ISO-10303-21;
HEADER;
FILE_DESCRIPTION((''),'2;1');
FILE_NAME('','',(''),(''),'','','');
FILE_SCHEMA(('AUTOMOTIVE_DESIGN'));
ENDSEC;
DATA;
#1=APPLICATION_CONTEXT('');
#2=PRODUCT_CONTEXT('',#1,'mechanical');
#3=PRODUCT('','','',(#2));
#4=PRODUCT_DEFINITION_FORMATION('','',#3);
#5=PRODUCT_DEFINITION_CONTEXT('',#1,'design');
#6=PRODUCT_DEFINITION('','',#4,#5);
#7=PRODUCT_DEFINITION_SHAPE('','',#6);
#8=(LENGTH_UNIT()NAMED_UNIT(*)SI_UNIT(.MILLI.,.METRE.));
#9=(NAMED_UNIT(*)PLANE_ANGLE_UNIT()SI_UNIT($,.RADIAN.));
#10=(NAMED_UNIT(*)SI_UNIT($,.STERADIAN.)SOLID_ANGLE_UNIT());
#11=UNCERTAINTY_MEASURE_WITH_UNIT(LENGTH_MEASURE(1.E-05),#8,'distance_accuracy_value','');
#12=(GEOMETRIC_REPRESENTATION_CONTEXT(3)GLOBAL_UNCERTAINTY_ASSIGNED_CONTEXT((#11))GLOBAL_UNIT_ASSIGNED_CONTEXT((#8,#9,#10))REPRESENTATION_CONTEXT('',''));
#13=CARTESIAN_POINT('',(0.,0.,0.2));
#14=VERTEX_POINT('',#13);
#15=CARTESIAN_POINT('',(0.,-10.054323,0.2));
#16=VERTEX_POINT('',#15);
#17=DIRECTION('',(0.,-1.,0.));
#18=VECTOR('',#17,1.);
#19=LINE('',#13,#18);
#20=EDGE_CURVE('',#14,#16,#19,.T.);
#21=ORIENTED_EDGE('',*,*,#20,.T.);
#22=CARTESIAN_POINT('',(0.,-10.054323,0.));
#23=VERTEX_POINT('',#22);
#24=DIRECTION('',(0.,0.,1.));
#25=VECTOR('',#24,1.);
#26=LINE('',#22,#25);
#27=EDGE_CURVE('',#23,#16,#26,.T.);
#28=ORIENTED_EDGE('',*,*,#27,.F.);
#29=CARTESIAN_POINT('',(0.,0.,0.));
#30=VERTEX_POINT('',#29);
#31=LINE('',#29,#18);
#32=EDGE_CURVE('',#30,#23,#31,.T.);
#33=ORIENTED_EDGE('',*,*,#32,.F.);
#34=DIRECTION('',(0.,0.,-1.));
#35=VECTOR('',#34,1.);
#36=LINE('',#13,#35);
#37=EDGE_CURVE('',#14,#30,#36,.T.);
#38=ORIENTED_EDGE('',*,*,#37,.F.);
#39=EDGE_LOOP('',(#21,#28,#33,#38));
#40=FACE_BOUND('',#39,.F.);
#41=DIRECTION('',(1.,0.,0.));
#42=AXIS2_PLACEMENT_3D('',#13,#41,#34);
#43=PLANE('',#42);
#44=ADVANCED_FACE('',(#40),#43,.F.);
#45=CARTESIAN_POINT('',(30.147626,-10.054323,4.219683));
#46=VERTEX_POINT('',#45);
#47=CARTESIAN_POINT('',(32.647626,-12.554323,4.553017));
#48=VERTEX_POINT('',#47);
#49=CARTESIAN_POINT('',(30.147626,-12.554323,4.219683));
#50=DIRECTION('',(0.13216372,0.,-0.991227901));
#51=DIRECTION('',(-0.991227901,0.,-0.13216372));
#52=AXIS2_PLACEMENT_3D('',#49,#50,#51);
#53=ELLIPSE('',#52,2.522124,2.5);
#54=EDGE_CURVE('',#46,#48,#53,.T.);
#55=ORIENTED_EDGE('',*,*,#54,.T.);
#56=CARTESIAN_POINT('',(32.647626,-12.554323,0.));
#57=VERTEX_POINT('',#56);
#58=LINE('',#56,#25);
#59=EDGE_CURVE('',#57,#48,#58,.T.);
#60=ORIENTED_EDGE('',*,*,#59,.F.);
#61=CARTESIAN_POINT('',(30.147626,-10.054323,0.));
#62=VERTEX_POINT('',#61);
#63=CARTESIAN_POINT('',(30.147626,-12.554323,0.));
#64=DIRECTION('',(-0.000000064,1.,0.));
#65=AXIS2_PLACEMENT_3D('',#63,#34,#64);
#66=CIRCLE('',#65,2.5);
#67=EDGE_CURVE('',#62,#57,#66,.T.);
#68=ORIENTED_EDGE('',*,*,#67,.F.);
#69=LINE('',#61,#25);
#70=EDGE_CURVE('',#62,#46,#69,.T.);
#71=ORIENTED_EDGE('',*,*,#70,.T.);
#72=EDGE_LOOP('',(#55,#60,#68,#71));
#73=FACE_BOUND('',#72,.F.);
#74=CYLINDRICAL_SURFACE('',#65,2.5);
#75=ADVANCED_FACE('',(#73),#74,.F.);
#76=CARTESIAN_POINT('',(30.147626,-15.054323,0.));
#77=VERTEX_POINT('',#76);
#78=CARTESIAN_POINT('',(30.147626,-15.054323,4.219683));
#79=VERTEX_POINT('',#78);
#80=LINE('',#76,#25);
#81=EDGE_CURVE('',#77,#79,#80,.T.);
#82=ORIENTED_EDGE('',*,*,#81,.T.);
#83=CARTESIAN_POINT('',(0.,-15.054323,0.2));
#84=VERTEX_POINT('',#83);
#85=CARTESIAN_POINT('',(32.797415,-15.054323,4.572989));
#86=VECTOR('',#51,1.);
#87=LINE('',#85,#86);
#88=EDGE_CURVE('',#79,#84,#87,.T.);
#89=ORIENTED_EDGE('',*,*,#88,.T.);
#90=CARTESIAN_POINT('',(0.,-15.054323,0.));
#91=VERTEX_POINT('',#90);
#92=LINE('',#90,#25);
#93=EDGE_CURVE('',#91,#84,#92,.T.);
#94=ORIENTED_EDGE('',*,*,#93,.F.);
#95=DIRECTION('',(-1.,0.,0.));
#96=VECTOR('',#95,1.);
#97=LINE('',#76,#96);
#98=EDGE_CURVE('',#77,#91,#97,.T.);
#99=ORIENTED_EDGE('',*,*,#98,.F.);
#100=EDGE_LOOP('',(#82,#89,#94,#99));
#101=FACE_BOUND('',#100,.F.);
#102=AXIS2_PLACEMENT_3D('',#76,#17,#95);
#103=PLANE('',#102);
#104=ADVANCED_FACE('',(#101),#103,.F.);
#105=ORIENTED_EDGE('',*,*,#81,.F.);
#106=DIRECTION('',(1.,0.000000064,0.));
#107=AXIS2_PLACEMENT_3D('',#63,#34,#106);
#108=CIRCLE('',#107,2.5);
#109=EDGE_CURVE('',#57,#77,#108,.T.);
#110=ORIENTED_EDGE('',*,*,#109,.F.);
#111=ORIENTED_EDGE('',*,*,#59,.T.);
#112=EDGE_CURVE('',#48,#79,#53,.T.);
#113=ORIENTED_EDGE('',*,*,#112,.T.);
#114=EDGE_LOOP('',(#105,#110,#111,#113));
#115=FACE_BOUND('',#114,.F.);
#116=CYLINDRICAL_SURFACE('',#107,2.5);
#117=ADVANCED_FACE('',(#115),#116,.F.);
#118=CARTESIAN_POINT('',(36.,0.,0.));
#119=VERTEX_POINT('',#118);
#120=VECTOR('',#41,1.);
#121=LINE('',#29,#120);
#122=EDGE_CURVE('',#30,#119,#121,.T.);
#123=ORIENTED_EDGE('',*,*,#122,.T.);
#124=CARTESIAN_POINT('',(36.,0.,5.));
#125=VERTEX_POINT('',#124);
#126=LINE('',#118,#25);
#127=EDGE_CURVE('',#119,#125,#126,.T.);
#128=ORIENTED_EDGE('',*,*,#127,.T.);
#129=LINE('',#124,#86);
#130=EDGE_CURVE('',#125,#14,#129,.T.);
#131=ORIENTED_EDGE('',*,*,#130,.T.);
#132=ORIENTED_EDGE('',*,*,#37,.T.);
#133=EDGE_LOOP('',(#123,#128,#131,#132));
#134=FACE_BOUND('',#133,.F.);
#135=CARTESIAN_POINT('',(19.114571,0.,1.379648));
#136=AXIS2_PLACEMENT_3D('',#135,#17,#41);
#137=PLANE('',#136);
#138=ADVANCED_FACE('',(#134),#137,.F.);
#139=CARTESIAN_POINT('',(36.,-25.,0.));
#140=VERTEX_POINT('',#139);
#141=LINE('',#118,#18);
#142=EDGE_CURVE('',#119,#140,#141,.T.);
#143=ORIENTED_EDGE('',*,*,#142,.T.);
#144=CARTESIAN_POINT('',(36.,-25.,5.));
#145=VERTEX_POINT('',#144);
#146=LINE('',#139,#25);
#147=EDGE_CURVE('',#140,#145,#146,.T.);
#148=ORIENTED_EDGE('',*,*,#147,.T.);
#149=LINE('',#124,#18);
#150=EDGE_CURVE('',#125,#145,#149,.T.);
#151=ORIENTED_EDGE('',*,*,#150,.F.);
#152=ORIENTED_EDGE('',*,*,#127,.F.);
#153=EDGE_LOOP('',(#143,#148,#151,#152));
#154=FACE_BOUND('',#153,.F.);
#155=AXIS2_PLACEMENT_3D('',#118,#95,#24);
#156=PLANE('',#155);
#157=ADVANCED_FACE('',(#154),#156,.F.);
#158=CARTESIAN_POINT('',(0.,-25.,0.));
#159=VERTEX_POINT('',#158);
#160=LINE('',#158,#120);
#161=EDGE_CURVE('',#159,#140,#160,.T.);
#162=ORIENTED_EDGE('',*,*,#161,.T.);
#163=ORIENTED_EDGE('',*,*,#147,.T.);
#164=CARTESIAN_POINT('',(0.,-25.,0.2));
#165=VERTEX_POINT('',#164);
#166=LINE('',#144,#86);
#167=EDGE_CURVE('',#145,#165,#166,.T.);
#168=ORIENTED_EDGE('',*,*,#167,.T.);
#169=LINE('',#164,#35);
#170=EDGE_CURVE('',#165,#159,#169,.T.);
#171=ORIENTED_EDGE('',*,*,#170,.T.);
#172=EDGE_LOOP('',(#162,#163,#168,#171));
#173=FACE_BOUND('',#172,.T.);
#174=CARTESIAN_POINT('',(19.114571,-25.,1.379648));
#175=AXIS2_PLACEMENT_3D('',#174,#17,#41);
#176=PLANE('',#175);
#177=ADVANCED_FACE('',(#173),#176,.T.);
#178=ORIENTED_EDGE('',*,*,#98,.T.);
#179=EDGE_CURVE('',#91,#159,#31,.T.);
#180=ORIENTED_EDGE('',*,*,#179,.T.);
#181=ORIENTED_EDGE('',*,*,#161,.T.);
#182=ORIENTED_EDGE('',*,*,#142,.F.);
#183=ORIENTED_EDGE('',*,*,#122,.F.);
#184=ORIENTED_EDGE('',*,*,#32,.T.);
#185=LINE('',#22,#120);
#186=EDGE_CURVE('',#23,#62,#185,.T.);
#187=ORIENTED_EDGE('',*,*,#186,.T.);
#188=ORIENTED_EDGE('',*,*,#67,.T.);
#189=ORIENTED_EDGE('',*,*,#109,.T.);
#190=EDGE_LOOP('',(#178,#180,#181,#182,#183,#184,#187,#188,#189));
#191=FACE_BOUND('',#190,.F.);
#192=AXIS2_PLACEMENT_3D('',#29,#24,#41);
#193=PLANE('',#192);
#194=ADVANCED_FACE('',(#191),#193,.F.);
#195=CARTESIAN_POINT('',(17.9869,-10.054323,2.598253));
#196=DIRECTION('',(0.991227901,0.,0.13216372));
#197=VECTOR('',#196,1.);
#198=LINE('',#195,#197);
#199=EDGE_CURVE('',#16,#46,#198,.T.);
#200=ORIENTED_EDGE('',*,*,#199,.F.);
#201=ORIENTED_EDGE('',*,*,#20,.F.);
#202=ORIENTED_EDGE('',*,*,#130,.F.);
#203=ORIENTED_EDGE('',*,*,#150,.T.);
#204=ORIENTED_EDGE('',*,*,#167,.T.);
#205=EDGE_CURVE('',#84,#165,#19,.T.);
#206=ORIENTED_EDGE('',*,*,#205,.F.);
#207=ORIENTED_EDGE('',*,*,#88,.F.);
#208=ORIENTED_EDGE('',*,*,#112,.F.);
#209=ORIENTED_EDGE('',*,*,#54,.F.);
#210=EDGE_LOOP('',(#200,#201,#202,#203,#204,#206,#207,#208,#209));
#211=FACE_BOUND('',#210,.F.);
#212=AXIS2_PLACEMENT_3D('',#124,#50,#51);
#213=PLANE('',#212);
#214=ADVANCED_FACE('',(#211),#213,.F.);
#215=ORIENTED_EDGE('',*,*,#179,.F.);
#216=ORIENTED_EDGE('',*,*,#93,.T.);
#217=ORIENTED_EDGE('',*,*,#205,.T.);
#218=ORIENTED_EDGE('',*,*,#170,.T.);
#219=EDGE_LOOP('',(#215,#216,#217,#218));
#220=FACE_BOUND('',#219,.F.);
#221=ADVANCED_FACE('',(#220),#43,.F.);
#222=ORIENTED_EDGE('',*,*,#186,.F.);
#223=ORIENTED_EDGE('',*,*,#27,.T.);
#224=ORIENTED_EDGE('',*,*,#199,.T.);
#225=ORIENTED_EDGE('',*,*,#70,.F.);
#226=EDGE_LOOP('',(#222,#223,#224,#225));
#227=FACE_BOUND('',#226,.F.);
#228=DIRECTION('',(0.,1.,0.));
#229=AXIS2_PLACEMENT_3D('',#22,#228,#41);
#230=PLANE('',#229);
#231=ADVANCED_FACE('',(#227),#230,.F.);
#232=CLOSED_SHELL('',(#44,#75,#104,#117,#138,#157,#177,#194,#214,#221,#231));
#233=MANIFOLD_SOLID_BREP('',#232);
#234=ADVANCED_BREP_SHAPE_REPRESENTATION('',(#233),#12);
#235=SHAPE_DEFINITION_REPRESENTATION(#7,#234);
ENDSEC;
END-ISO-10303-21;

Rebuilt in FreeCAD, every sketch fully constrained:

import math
import FreeCAD as App
import Part
import Sketcher

V = App.Vector

doc = App.newDocument("Part")
body = doc.addObject("PartDesign::Body", "Body")

sketch1 = body.newObject("Sketcher::SketchObject", "Sketch")
sketch1.AttachmentSupport = (doc.getObject("XZ_Plane"), [""])
sketch1.MapMode = "FlatFace"
sketch1.addGeometry([
    Part.LineSegment(V(0, 0.2, 0), V(0, 0, 0)),
    Part.LineSegment(V(0, 0, 0), V(36, 0, 0)),
    Part.LineSegment(V(36, 0, 0), V(36, 5, 0)),
    Part.LineSegment(V(36, 5, 0), V(0, 0.2, 0)),
], False)
sketch1.addConstraint([
    Sketcher.Constraint("Coincident", 0, 2, 1, 1),
    Sketcher.Constraint("Coincident", 1, 2, 2, 1),
    Sketcher.Constraint("Coincident", 2, 2, 3, 1),
    Sketcher.Constraint("Coincident", 3, 2, 0, 1),
    Sketcher.Constraint("Vertical", 0),
    Sketcher.Constraint("Horizontal", 1),
    Sketcher.Constraint("Vertical", 2),
    Sketcher.Constraint("Coincident", 0, 2, -1, 1),
    Sketcher.Constraint("DistanceX", 1, 1, 1, 2, 36.0),
    Sketcher.Constraint("DistanceY", 2, 1, 2, 2, 5.0),
    Sketcher.Constraint("DistanceY", 0, 2, 0, 1, 0.2),
])
pad1 = body.newObject("PartDesign::Pad", "Pad")
pad1.Profile = sketch1
pad1.Length = 25

sketch2 = body.newObject("Sketcher::SketchObject", "Sketch001")
sketch2.AttachmentSupport = (doc.getObject("XY_Plane"), [""])
sketch2.MapMode = "FlatFace"
sketch2.addGeometry(Part.Circle(V(30.1, -12.6, 0), V(0, 0, 1), 2), False)
sketch2.addConstraint([
    Sketcher.Constraint("Diameter", 0, 4.0),
    Sketcher.Constraint("DistanceX", -1, 1, 0, 3, 30.147626),
    Sketcher.Constraint("DistanceY", 0, 3, -1, 1, 12.554323),
])
doc.recompute()
hole = body.newObject("PartDesign::Hole", "Hole")
hole.Profile = sketch2
hole.ThreadType = "None"
hole.Diameter = 4
hole.DepthType = "ThroughAll"
hole.Reversed = True

sketch3 = body.newObject("Sketcher::SketchObject", "Sketch002")
sketch3.AttachmentSupport = (doc.getObject("XY_Plane"), [""])
sketch3.MapMode = "FlatFace"
sketch3.addGeometry([
    Part.LineSegment(V(30.1, -15.1, 0), V(0, -15.1, 0)),
    Part.LineSegment(V(0, -15.1, 0), V(0, -10.1, 0)),
    Part.LineSegment(V(0, -10.1, 0), V(30.1, -10.1, 0)),
    Part.ArcOfCircle(Part.Circle(V(30.1, -12.6, 0), V(0, 0, 1), 2.5), math.radians(0), math.radians(90)),
    Part.ArcOfCircle(Part.Circle(V(30.1, -12.6, 0), V(0, 0, 1), 2.5), math.radians(-90), math.radians(0)),
], False)
sketch3.addConstraint([
    Sketcher.Constraint("Coincident", 0, 2, 1, 1),
    Sketcher.Constraint("Coincident", 1, 2, 2, 1),
    Sketcher.Constraint("Tangent", 2, 2, 3, 2),
    Sketcher.Constraint("Tangent", 3, 1, 4, 2),
    Sketcher.Constraint("Tangent", 4, 1, 0, 1),
    Sketcher.Constraint("Horizontal", 0),
    Sketcher.Constraint("Vertical", 1),
    Sketcher.Constraint("Horizontal", 2),
    Sketcher.Constraint("Equal", 3, 4),
    Sketcher.Constraint("PointOnObject", 0, 2, -2),
    Sketcher.Constraint("Horizontal", 4, 3, 3, 1),
    Sketcher.Constraint("Radius", 3, 2.5),
    Sketcher.Constraint("DistanceX", 0, 2, 0, 1, 30.147626),
    Sketcher.Constraint("DistanceY", 3, 3, -1, 1, 12.554323),
])
pocket1 = body.newObject("PartDesign::Pocket", "Pocket")
pocket1.Profile = sketch3
pocket1.Length = 25
pocket1.Reversed = True

doc.recompute()
